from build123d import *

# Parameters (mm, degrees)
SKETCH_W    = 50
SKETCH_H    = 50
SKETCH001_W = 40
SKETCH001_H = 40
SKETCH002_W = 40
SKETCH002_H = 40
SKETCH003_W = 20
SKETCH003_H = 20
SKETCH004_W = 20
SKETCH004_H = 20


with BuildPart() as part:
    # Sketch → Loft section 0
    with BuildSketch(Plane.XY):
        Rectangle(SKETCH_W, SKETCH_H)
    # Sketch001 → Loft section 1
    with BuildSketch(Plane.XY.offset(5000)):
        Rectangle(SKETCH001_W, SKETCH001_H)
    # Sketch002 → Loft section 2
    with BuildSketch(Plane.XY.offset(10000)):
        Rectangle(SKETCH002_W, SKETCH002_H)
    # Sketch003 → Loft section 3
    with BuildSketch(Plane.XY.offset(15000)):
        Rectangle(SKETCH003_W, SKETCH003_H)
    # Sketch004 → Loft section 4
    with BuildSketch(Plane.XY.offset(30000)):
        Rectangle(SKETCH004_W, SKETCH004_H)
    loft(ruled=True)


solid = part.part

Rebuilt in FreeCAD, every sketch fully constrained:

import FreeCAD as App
import Part
import Sketcher

V = App.Vector
Q = App.Units.Quantity

doc = App.newDocument("Part")
body = doc.addObject("PartDesign::Body", "Body")

# Sketch on XY plane
sketch1 = doc.addObject("Sketcher::SketchObject", "Sketch")
body.addObject(sketch1)
sketch1.AttachmentSupport = (doc.XY_Plane, [""])
sketch1.MapMode = "FlatFace"
sketch1.addGeometry(Part.LineSegment(V(-25, 25, 0), V(-25, -25, 0)), False)
sketch1.addGeometry(Part.LineSegment(V(-25, -25, 0), V(25, -25, 0)), False)
sketch1.addGeometry(Part.LineSegment(V(25, -25, 0), V(25, 25, 0)), False)
sketch1.addGeometry(Part.LineSegment(V(25, 25, 0), V(-25, 25, 0)), False)
sketch1.addConstraint(Sketcher.Constraint("Coincident", 0, 2, 1, 1))
sketch1.addConstraint(Sketcher.Constraint("Coincident", 1, 2, 2, 1))
sketch1.addConstraint(Sketcher.Constraint("Coincident", 2, 2, 3, 1))
sketch1.addConstraint(Sketcher.Constraint("Coincident", 3, 2, 0, 1))
sketch1.addConstraint(Sketcher.Constraint("Vertical", 0))
sketch1.addConstraint(Sketcher.Constraint("Horizontal", 1))
sketch1.addConstraint(Sketcher.Constraint("Vertical", 2))
sketch1.addConstraint(Sketcher.Constraint("Horizontal", 3))
sketch1.addConstraint(Sketcher.Constraint("Symmetric", 0, 2, 2, 2, -1, 1))
sketch1.addConstraint(Sketcher.Constraint("Equal", 3, 0))
sketch1.addConstraint(Sketcher.Constraint("DistanceX", 1, 1, 1, 2, Q("50 mm")))

# Sketch on XY plane
sketch2 = doc.addObject("Sketcher::SketchObject", "Sketch001")
body.addObject(sketch2)
sketch2.AttachmentSupport = (doc.XY_Plane, [""])
sketch2.MapMode = "FlatFace"
sketch2.AttachmentOffset = App.Placement(V(0, 0, 5000), App.Rotation())
sketch2.addGeometry(Part.LineSegment(V(-20, 20, 0), V(-20, -20, 0)), False)
sketch2.addGeometry(Part.LineSegment(V(-20, -20, 0), V(20, -20, 0)), False)
sketch2.addGeometry(Part.LineSegment(V(20, -20, 0), V(20, 20, 0)), False)
sketch2.addGeometry(Part.LineSegment(V(20, 20, 0), V(-20, 20, 0)), False)
sketch2.addConstraint(Sketcher.Constraint("Coincident", 0, 2, 1, 1))
sketch2.addConstraint(Sketcher.Constraint("Coincident", 1, 2, 2, 1))
sketch2.addConstraint(Sketcher.Constraint("Coincident", 2, 2, 3, 1))
sketch2.addConstraint(Sketcher.Constraint("Coincident", 3, 2, 0, 1))
sketch2.addConstraint(Sketcher.Constraint("Vertical", 0))
sketch2.addConstraint(Sketcher.Constraint("Horizontal", 1))
sketch2.addConstraint(Sketcher.Constraint("Vertical", 2))
sketch2.addConstraint(Sketcher.Constraint("Horizontal", 3))
sketch2.addConstraint(Sketcher.Constraint("Symmetric", 0, 2, 2, 2, -1, 1))
sketch2.addConstraint(Sketcher.Constraint("Equal", 3, 0))
sketch2.addConstraint(Sketcher.Constraint("DistanceX", 1, 1, 1, 2, Q("40 mm")))

# Sketch on XY plane
sketch3 = doc.addObject("Sketcher::SketchObject", "Sketch002")
body.addObject(sketch3)
sketch3.AttachmentSupport = (doc.XY_Plane, [""])
sketch3.MapMode = "FlatFace"
sketch3.AttachmentOffset = App.Placement(V(0, 0, 10000), App.Rotation())
sketch3.addGeometry(Part.LineSegment(V(-20, 20, 0), V(-20, -20, 0)), False)
sketch3.addGeometry(Part.LineSegment(V(-20, -20, 0), V(20, -20, 0)), False)
sketch3.addGeometry(Part.LineSegment(V(20, -20, 0), V(20, 20, 0)), False)
sketch3.addGeometry(Part.LineSegment(V(20, 20, 0), V(-20, 20, 0)), False)
sketch3.addConstraint(Sketcher.Constraint("Coincident", 0, 2, 1, 1))
sketch3.addConstraint(Sketcher.Constraint("Coincident", 1, 2, 2, 1))
sketch3.addConstraint(Sketcher.Constraint("Coincident", 2, 2, 3, 1))
sketch3.addConstraint(Sketcher.Constraint("Coincident", 3, 2, 0, 1))
sketch3.addConstraint(Sketcher.Constraint("Vertical", 0))
sketch3.addConstraint(Sketcher.Constraint("Horizontal", 1))
sketch3.addConstraint(Sketcher.Constraint("Vertical", 2))
sketch3.addConstraint(Sketcher.Constraint("Horizontal", 3))
sketch3.addConstraint(Sketcher.Constraint("Symmetric", 0, 2, 2, 2, -1, 1))
sketch3.addConstraint(Sketcher.Constraint("Equal", 3, 0))
sketch3.addConstraint(Sketcher.Constraint("DistanceX", 1, 1, 1, 2, Q("40 mm")))

# Sketch on XY plane
sketch4 = doc.addObject("Sketcher::SketchObject", "Sketch003")
body.addObject(sketch4)
sketch4.AttachmentSupport = (doc.XY_Plane, [""])
sketch4.MapMode = "FlatFace"
sketch4.AttachmentOffset = App.Placement(V(0, 0, 15000), App.Rotation())
sketch4.addGeometry(Part.LineSegment(V(-10, 10, 0), V(-10, -10, 0)), False)
sketch4.addGeometry(Part.LineSegment(V(-10, -10, 0), V(10, -10, 0)), False)
sketch4.addGeometry(Part.LineSegment(V(10, -10, 0), V(10, 10, 0)), False)
sketch4.addGeometry(Part.LineSegment(V(10, 10, 0), V(-10, 10, 0)), False)
sketch4.addConstraint(Sketcher.Constraint("Coincident", 0, 2, 1, 1))
sketch4.addConstraint(Sketcher.Constraint("Coincident", 1, 2, 2, 1))
sketch4.addConstraint(Sketcher.Constraint("Coincident", 2, 2, 3, 1))
sketch4.addConstraint(Sketcher.Constraint("Coincident", 3, 2, 0, 1))
sketch4.addConstraint(Sketcher.Constraint("Vertical", 0))
sketch4.addConstraint(Sketcher.Constraint("Horizontal", 1))
sketch4.addConstraint(Sketcher.Constraint("Vertical", 2))
sketch4.addConstraint(Sketcher.Constraint("Horizontal", 3))
sketch4.addConstraint(Sketcher.Constraint("Symmetric", 0, 2, 2, 2, -1, 1))
sketch4.addConstraint(Sketcher.Constraint("Equal", 3, 0))
sketch4.addConstraint(Sketcher.Constraint("DistanceX", 1, 1, 1, 2, Q("20 mm")))

# Sketch on XY plane
sketch5 = doc.addObject("Sketcher::SketchObject", "Sketch004")
body.addObject(sketch5)
sketch5.AttachmentSupport = (doc.XY_Plane, [""])
sketch5.MapMode = "FlatFace"
sketch5.AttachmentOffset = App.Placement(V(0, 0, 30000), App.Rotation())
sketch5.addGeometry(Part.LineSegment(V(-10, 10, 0), V(-10, -10, 0)), False)
sketch5.addGeometry(Part.LineSegment(V(-10, -10, 0), V(10, -10, 0)), False)
sketch5.addGeometry(Part.LineSegment(V(10, -10, 0), V(10, 10, 0)), False)
sketch5.addGeometry(Part.LineSegment(V(10, 10, 0), V(-10, 10, 0)), False)
sketch5.addConstraint(Sketcher.Constraint("Coincident", 0, 2, 1, 1))
sketch5.addConstraint(Sketcher.Constraint("Coincident", 1, 2, 2, 1))
sketch5.addConstraint(Sketcher.Constraint("Coincident", 2, 2, 3, 1))
sketch5.addConstraint(Sketcher.Constraint("Coincident", 3, 2, 0, 1))
sketch5.addConstraint(Sketcher.Constraint("Vertical", 0))
sketch5.addConstraint(Sketcher.Constraint("Horizontal", 1))
sketch5.addConstraint(Sketcher.Constraint("Vertical", 2))
sketch5.addConstraint(Sketcher.Constraint("Horizontal", 3))
sketch5.addConstraint(Sketcher.Constraint("Symmetric", 0, 2, 2, 2, -1, 1))
sketch5.addConstraint(Sketcher.Constraint("Equal", 3, 0))
sketch5.addConstraint(Sketcher.Constraint("DistanceX", 1, 1, 1, 2, Q("20 mm")))

additiveloft = doc.addObject("PartDesign::AdditiveLoft", "AdditiveLoft")
body.addObject(additiveloft)
additiveloft.Profile = sketch1
additiveloft.Sections = [sketch2, sketch3, sketch4, sketch5]
additiveloft.Ruled = True

doc.recompute()
